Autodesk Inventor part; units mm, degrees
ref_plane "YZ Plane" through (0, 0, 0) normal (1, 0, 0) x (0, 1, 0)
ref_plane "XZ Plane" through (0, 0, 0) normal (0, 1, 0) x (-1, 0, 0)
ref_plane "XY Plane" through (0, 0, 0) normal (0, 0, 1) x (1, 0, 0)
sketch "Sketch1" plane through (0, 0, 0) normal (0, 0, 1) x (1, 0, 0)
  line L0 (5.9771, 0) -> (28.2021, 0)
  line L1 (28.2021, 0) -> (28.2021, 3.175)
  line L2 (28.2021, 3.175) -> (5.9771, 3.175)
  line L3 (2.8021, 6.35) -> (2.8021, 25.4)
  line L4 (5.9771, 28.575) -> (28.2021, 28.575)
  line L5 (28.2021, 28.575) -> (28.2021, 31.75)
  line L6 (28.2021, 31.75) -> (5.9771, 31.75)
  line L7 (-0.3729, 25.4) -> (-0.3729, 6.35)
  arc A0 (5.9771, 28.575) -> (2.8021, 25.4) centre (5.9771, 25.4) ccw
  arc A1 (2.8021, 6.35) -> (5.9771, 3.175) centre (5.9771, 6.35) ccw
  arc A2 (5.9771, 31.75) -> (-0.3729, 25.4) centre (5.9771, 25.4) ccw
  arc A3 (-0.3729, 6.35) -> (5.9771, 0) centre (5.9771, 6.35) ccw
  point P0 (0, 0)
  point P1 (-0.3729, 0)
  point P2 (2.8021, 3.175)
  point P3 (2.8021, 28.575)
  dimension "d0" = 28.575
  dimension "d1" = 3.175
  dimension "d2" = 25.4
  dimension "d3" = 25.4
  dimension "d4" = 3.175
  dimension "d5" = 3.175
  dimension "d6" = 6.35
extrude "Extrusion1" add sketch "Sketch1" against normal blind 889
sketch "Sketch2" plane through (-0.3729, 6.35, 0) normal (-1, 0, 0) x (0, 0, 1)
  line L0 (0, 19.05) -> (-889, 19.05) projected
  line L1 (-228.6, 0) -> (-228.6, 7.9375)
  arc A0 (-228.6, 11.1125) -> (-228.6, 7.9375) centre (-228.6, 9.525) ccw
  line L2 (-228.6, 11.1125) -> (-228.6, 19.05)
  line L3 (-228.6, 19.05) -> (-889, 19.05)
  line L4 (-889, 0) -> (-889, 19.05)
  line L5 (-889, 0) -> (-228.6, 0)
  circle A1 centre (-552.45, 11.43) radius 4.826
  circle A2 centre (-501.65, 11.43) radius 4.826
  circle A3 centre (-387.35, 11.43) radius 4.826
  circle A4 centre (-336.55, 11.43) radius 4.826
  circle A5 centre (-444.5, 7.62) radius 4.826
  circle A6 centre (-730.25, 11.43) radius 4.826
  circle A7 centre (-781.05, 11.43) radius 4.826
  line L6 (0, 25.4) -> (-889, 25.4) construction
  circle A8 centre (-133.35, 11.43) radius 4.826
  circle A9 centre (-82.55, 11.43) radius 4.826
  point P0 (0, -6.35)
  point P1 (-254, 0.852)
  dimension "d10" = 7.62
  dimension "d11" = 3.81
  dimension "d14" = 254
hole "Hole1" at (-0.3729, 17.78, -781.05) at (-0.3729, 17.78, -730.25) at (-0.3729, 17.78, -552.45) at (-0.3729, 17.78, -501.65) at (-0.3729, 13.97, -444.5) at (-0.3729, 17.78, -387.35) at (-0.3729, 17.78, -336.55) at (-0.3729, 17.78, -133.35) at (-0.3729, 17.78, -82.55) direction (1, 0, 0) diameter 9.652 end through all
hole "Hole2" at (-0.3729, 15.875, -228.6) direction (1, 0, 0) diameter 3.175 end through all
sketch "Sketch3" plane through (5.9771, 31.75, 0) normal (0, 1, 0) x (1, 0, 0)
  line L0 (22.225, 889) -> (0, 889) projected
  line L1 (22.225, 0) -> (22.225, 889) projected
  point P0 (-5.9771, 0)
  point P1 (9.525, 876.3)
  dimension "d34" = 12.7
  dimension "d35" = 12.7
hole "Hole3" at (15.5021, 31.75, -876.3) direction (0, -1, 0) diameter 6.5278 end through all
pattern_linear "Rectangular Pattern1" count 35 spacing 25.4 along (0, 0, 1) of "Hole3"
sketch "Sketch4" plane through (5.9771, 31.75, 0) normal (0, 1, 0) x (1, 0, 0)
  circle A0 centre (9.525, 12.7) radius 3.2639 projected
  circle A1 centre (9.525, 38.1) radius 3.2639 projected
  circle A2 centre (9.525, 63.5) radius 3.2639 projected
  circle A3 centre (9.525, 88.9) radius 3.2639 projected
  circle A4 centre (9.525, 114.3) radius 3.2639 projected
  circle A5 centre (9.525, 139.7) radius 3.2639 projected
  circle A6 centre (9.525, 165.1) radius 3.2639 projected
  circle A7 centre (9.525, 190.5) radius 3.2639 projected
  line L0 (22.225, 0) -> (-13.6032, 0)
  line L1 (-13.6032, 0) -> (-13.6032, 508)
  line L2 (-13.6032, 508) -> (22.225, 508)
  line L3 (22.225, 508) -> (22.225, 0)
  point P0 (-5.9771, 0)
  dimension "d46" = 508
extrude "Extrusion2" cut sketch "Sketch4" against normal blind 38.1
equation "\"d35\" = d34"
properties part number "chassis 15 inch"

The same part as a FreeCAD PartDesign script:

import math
import FreeCAD as App
import Part
import Sketcher
from FreeCAD import Vector
Q = App.Units.Quantity


def add_polygon(sketch, points):
    """Adds a closed chain of lines whose ends are joined by coincident constraints."""
    first, n = sketch.GeometryCount, len(points)
    for a, b in zip(points, points[1:] + points[:1]):
        sketch.addGeometry(Part.LineSegment(App.Vector(*a, 0), App.Vector(*b, 0)), False)
    for i in range(n):
        sketch.addConstraint(Sketcher.Constraint("Coincident", first + i, 2, first + (i + 1) % n, 1))

doc = App.newDocument("Part")
params = doc.addObject("Spreadsheet::Sheet", "Params")
for row, (alias, value) in enumerate([
    ("sketch1_radius", "0.25 in"),
    ("sketch1_radius2", "0.125 in"),
    ("pad1_length", "35 in"),
    ("sketch2_diameter", "0.38 in"),
    ("hole_diameter", "0.38 in"),
    ("sketch3_diameter", "0.125 in"),
    ("hole2_diameter", "0.125 in"),
    ("sketch4_diameter", "0.257 in"),
    ("hole3_diameter", "0.257 in"),
    ("linearpattern_pitch", "1 in"),
    ("sketch5_height", "20 in"),
    ("sketch5_diameter", "0.257 in"),
    ("pocket1_length", "1.5 in"),
], start=1):
    params.set(f"A{row}", alias)
    params.set(f"B{row}", "=" + value)
    params.setAlias(f"B{row}", alias)

body = doc.addObject("PartDesign::Body", "Body")

# Sketch on XY plane
sketch1 = body.newObject("Sketcher::SketchObject", "Sketch")
sketch1.AttachmentSupport = (doc.getObject("XY_Plane"), [""])
sketch1.MapMode = "FlatFace"
sketch1.addGeometry(Part.ArcOfCircle(Part.Circle(Vector(6, 6.3, 0), Vector(0, 0, 1), 6.3), math.radians(180), math.radians(270)), False)
sketch1.addGeometry(Part.LineSegment(Vector(6, 0, 0), Vector(28.2, 0, 0)), False)
sketch1.addGeometry(Part.LineSegment(Vector(28.2, 0, 0), Vector(28.2, 3.2, 0)), False)
sketch1.addGeometry(Part.LineSegment(Vector(28.2, 3.2, 0), Vector(6, 3.2, 0)), False)
sketch1.addGeometry(Part.ArcOfCircle(Part.Circle(Vector(6, 6.3, 0), Vector(0, 0, 1), 3.2), math.radians(180), math.radians(270)), False)
sketch1.addGeometry(Part.LineSegment(Vector(2.8, 6.3, 0), Vector(2.8, 25.4, 0)), False)
sketch1.addGeometry(Part.ArcOfCircle(Part.Circle(Vector(6, 25.4, 0), Vector(0, 0, 1), 3.2), math.radians(90), math.radians(180)), False)
sketch1.addGeometry(Part.LineSegment(Vector(6, 28.6, 0), Vector(28.2, 28.6, 0)), False)
sketch1.addGeometry(Part.LineSegment(Vector(28.2, 28.6, 0), Vector(28.2, 31.8, 0)), False)
sketch1.addGeometry(Part.LineSegment(Vector(28.2, 31.8, 0), Vector(6, 31.8, 0)), False)
sketch1.addGeometry(Part.ArcOfCircle(Part.Circle(Vector(6, 25.4, 0), Vector(0, 0, 1), 6.4), math.radians(90), math.radians(180)), False)
sketch1.addGeometry(Part.LineSegment(Vector(-0.4, 25.4, 0), Vector(-0.4, 6.3, 0)), False)
sketch1.addConstraint(Sketcher.Constraint("Tangent", 0, 2, 1, 1))
sketch1.addConstraint(Sketcher.Constraint("Coincident", 1, 2, 2, 1))
sketch1.addConstraint(Sketcher.Constraint("Coincident", 2, 2, 3, 1))
sketch1.addConstraint(Sketcher.Constraint("Tangent", 3, 2, 4, 2))
sketch1.addConstraint(Sketcher.Constraint("Tangent", 4, 1, 5, 1))
sketch1.addConstraint(Sketcher.Constraint("Tangent", 5, 2, 6, 2))
sketch1.addConstraint(Sketcher.Constraint("Tangent", 6, 1, 7, 1))
sketch1.addConstraint(Sketcher.Constraint("Coincident", 7, 2, 8, 1))
sketch1.addConstraint(Sketcher.Constraint("Coincident", 8, 2, 9, 1))
sketch1.addConstraint(Sketcher.Constraint("Tangent", 9, 2, 10, 1))
sketch1.addConstraint(Sketcher.Constraint("Tangent", 10, 2, 11, 1))
sketch1.addConstraint(Sketcher.Constraint("Tangent", 11, 2, 0, 1))
sketch1.addConstraint(Sketcher.Constraint("Horizontal", 1))
sketch1.addConstraint(Sketcher.Constraint("Vertical", 2))
sketch1.addConstraint(Sketcher.Constraint("Horizontal", 3))
sketch1.addConstraint(Sketcher.Constraint("Vertical", 5))
sketch1.addConstraint(Sketcher.Constraint("Horizontal", 7))
sketch1.addConstraint(Sketcher.Constraint("Vertical", 8))
sketch1.addConstraint(Sketcher.Constraint("Horizontal", 9))
sketch1.addConstraint(Sketcher.Constraint("Vertical", 11))
sketch1.addConstraint(Sketcher.Constraint("Coincident", 4, 3, 0, 3))
sketch1.addConstraint(Sketcher.Constraint("Coincident", 10, 3, 6, 3))
sketch1.addConstraint(Sketcher.Constraint("Equal", 4, 6))
sketch1.addConstraint(Sketcher.Constraint("PointOnObject", 0, 2, -1))
sketch1.addConstraint(Sketcher.Constraint("Vertical", 2, 2, 7, 2))
sketch1.addConstraint(Sketcher.Constraint("Radius", 0, Q("0.25 in")))
sketch1.addConstraint(Sketcher.Constraint("DistanceY", -1, 1, 6, 3, Q("1 in")))
sketch1.addConstraint(Sketcher.Constraint("Radius", 4, Q("0.125 in")))
sketch1.addConstraint(Sketcher.Constraint("DistanceX", 5, 2, 7, 2, Q("1 in")))
sketch1.addConstraint(Sketcher.Constraint("DistanceX", -1, 1, 0, 3, Q("5.977 mm")))
sketch1.setExpression("Constraints[25]", "Params.sketch1_radius")
sketch1.setExpression("Constraints[27]", "Params.sketch1_radius2")
pad1 = body.newObject("PartDesign::Pad", "Pad")
pad1.Profile = sketch1
pad1.setExpression("Length", "Params.pad1_length")
pad1.Reversed = True

# Sketch on YZ plane
sketch2 = body.newObject("Sketcher::SketchObject", "Sketch001")
sketch2.AttachmentSupport = (doc.getObject("YZ_Plane"), [""])
sketch2.MapMode = "FlatFace"
sketch2.AttachmentOffset = App.Placement(Vector(0, 0, -0.3729), App.Rotation())
sketch2.addGeometry(Part.Circle(Vector(17.8, -781, 0), Vector(0, 0, 1), 4.8), False)
sketch2.addGeometry(Part.Circle(Vector(17.8, -730.2, 0), Vector(0, 0, 1), 4.8), False)
sketch2.addGeometry(Part.Circle(Vector(17.8, -552.5, 0), Vector(0, 0, 1), 4.8), False)
sketch2.addGeometry(Part.Circle(Vector(17.8, -501.6, 0), Vector(0, 0, 1), 4.8), False)
sketch2.addGeometry(Part.Circle(Vector(14, -444.5, 0), Vector(0, 0, 1), 4.8), False)
sketch2.addGeometry(Part.Circle(Vector(17.8, -387.4, 0), Vector(0, 0, 1), 4.8), False)
sketch2.addGeometry(Part.Circle(Vector(17.8, -336.6, 0), Vector(0, 0, 1), 4.8), False)
sketch2.addGeometry(Part.Circle(Vector(17.8, -133.3, 0), Vector(0, 0, 1), 4.8), False)
sketch2.addGeometry(Part.Circle(Vector(17.8, -82.5, 0), Vector(0, 0, 1), 4.8), False)
sketch2.addConstraint(Sketcher.Constraint("Equal", 0, 1))
sketch2.addConstraint(Sketcher.Constraint("Equal", 1, 2))
sketch2.addConstraint(Sketcher.Constraint("Equal", 2, 3))
sketch2.addConstraint(Sketcher.Constraint("Equal", 3, 4))
sketch2.addConstraint(Sketcher.Constraint("Equal", 4, 5))
sketch2.addConstraint(Sketcher.Constraint("Equal", 5, 6))
sketch2.addConstraint(Sketcher.Constraint("Equal", 6, 7))
sketch2.addConstraint(Sketcher.Constraint("Equal", 7, 8))
sketch2.addConstraint(Sketcher.Constraint("Vertical", 0, 3, 1, 3))
sketch2.addConstraint(Sketcher.Constraint("Vertical", 1, 3, 2, 3))
sketch2.addConstraint(Sketcher.Constraint("Vertical", 2, 3, 3, 3))
sketch2.addConstraint(Sketcher.Constraint("Vertical", 3, 3, 5, 3))
sketch2.addConstraint(Sketcher.Constraint("Vertical", 5, 3, 6, 3))
sketch2.addConstraint(Sketcher.Constraint("Vertical", 6, 3, 7, 3))
sketch2.addConstraint(Sketcher.Constraint("Vertical", 7, 3, 8, 3))
sketch2.addConstraint(Sketcher.Constraint("Diameter", 0, Q("0.38 in")))
sketch2.addConstraint(Sketcher.Constraint("DistanceY", 0, 3, 1, 3, Q("2 in")))
sketch2.addConstraint(Sketcher.Constraint("DistanceY", 1, 3, 2, 3, Q("7 in")))
sketch2.addConstraint(Sketcher.Constraint("DistanceY", 2, 3, 3, 3, Q("2 in")))
sketch2.addConstraint(Sketcher.Constraint("DistanceY", 5, 3, 6, 3, Q("2 in")))
sketch2.addConstraint(Sketcher.Constraint("DistanceY", 6, 3, 7, 3, Q("8 in")))
sketch2.addConstraint(Sketcher.Constraint("DistanceY", 7, 3, 8, 3, Q("2 in")))
sketch2.addConstraint(Sketcher.Constraint("DistanceX", -1, 1, 0, 3, Q("0.7 in")))
sketch2.addConstraint(Sketcher.Constraint("DistanceY", 4, 3, -1, 1, Q("17.5 in")))
sketch2.addConstraint(Sketcher.Constraint("DistanceY", 3, 3, 5, 3, Q("4.5 in")))
sketch2.addConstraint(Sketcher.Constraint("DistanceY", 0, 3, -1, 1, Q("30.75 in")))
sketch2.addConstraint(Sketcher.Constraint("DistanceX", -1, 1, 4, 3, Q("0.55 in")))
sketch2.setExpression("Constraints[15]", "Params.sketch2_diameter")
doc.recompute()
hole = body.newObject("PartDesign::Hole", "Hole")
hole.Profile = sketch2
hole.ThreadType = "None"
hole.setExpression("Diameter", "Params.hole_diameter")
hole.DepthType = "ThroughAll"
hole.Reversed = True

# Sketch on YZ plane
sketch3 = body.newObject("Sketcher::SketchObject", "Sketch002")
sketch3.AttachmentSupport = (doc.getObject("YZ_Plane"), [""])
sketch3.MapMode = "FlatFace"
sketch3.AttachmentOffset = App.Placement(Vector(0, 0, -0.3729), App.Rotation())
sketch3.addGeometry(Part.Circle(Vector(15.9, -228.6, 0), Vector(0, 0, 1), 1.6), False)
sketch3.addConstraint(Sketcher.Constraint("Diameter", 0, Q("0.125 in")))
sketch3.addConstraint(Sketcher.Constraint("DistanceY", 0, 3, -1, 1, Q("9 in")))
sketch3.addConstraint(Sketcher.Constraint("DistanceX", -1, 1, 0, 3, Q("0.625 in")))
sketch3.setExpression("Constraints[0]", "Params.sketch3_diameter")
doc.recompute()
hole2 = body.newObject("PartDesign::Hole", "Hole001")
hole2.Profile = sketch3
hole2.ThreadType = "None"
hole2.setExpression("Diameter", "Params.hole2_diameter")
hole2.DepthType = "ThroughAll"
hole2.Reversed = True

# Sketch on XZ plane
sketch4 = body.newObject("Sketcher::SketchObject", "Sketch003")
sketch4.AttachmentSupport = (doc.getObject("XZ_Plane"), [""])
sketch4.MapMode = "FlatFace"
sketch4.AttachmentOffset = App.Placement(Vector(0, 0, -1.25 * 25.4), App.Rotation())
sketch4.addGeometry(Part.Circle(Vector(15.5, -876.3, 0), Vector(0, 0, 1), 3.3), False)
sketch4.addConstraint(Sketcher.Constraint("Diameter", 0, Q("0.257 in")))
sketch4.addConstraint(Sketcher.Constraint("DistanceY", 0, 3, -1, 1, Q("34.5 in")))
sketch4.addConstraint(Sketcher.Constraint("DistanceX", -1, 1, 0, 3, Q("15.502 mm")))
sketch4.setExpression("Constraints[0]", "Params.sketch4_diameter")
doc.recompute()
hole3 = body.newObject("PartDesign::Hole", "Hole002")
hole3.Profile = sketch4
hole3.ThreadType = "None"
hole3.setExpression("Diameter", "Params.hole3_diameter")
hole3.DepthType = "ThroughAll"
hole3.Reversed = True
doc.recompute()

linearpattern = body.newObject("PartDesign::LinearPattern", "LinearPattern")
linearpattern.Originals = [hole3]
linearpattern.Direction = (doc.getObject("Z_Axis"), [""])
linearpattern.Mode = "offset"
linearpattern.setExpression("Offset", "Params.linearpattern_pitch")
linearpattern.Occurrences = 35
body.Tip = linearpattern

# Sketch on XZ plane
sketch5 = body.newObject("Sketcher::SketchObject", "Sketch004")
sketch5.AttachmentSupport = (doc.getObject("XZ_Plane"), [""])
sketch5.MapMode = "FlatFace"
sketch5.AttachmentOffset = App.Placement(Vector(0, 0, -1.25 * 25.4), App.Rotation())
add_polygon(sketch5, [(-7.6, 0), (28.2, 0), (28.2, -508), (-7.6, -508)])  # lines 0-3
sketch5.addGeometry(Part.Circle(Vector(15.5, -12.7, 0), Vector(0, 0, 1), 3.3), False)  # 4
sketch5.addGeometry(Part.Circle(Vector(15.5, -38.1, 0), Vector(0, 0, 1), 3.3), False)  # 5
sketch5.addGeometry(Part.Circle(Vector(15.5, -63.5, 0), Vector(0, 0, 1), 3.3), False)  # 6
sketch5.addGeometry(Part.Circle(Vector(15.5, -88.9, 0), Vector(0, 0, 1), 3.3), False)  # 7
sketch5.addGeometry(Part.Circle(Vector(15.5, -114.3, 0), Vector(0, 0, 1), 3.3), False)  # 8
sketch5.addGeometry(Part.Circle(Vector(15.5, -139.7, 0), Vector(0, 0, 1), 3.3), False)  # 9
sketch5.addGeometry(Part.Circle(Vector(15.5, -165.1, 0), Vector(0, 0, 1), 3.3), False)  # 10
sketch5.addGeometry(Part.Circle(Vector(15.5, -190.5, 0), Vector(0, 0, 1), 3.3), False)  # 11
sketch5.addConstraint(Sketcher.Constraint("Horizontal", 0))
sketch5.addConstraint(Sketcher.Constraint("Vertical", 1))
sketch5.addConstraint(Sketcher.Constraint("Horizontal", 2))
sketch5.addConstraint(Sketcher.Constraint("Vertical", 3))
sketch5.addConstraint(Sketcher.Constraint("Equal", 4, 5))
sketch5.addConstraint(Sketcher.Constraint("Equal", 5, 6))
sketch5.addConstraint(Sketcher.Constraint("Equal", 6, 7))
sketch5.addConstraint(Sketcher.Constraint("Equal", 7, 8))
sketch5.addConstraint(Sketcher.Constraint("Equal", 8, 9))
sketch5.addConstraint(Sketcher.Constraint("Equal", 9, 10))
sketch5.addConstraint(Sketcher.Constraint("Equal", 10, 11))
sketch5.addConstraint(Sketcher.Constraint("PointOnObject", 0, 2, -1))
sketch5.addConstraint(Sketcher.Constraint("Vertical", 4, 3, 5, 3))
sketch5.addConstraint(Sketcher.Constraint("Vertical", 5, 3, 6, 3))
sketch5.addConstraint(Sketcher.Constraint("Vertical", 6, 3, 7, 3))
sketch5.addConstraint(Sketcher.Constraint("Vertical", 7, 3, 8, 3))
sketch5.addConstraint(Sketcher.Constraint("Vertical", 8, 3, 9, 3))
sketch5.addConstraint(Sketcher.Constraint("Vertical", 9, 3, 10, 3))
sketch5.addConstraint(Sketcher.Constraint("Vertical", 10, 3, 11, 3))
sketch5.addConstraint(Sketcher.Constraint("DistanceY", 1, 2, 1, 1, Q("20 in")))
sketch5.addConstraint(Sketcher.Constraint("Diameter", 4, Q("0.257 in")))
sketch5.addConstraint(Sketcher.Constraint("DistanceY", 5, 3, 4, 3, Q("1 in")))
sketch5.addConstraint(Sketcher.Constraint("DistanceY", 6, 3, 5, 3, Q("1 in")))
sketch5.addConstraint(Sketcher.Constraint("DistanceY", 7, 3, 6, 3, Q("1 in")))
sketch5.addConstraint(Sketcher.Constraint("DistanceY", 8, 3, 7, 3, Q("1 in")))
sketch5.addConstraint(Sketcher.Constraint("DistanceY", 9, 3, 8, 3, Q("1 in")))
sketch5.addConstraint(Sketcher.Constraint("DistanceY", 10, 3, 9, 3, Q("1 in")))
sketch5.addConstraint(Sketcher.Constraint("DistanceY", 11, 3, 10, 3, Q("1 in")))
sketch5.addConstraint(Sketcher.Constraint("DistanceY", 4, 3, -1, 1, Q("0.5 in")))
sketch5.addConstraint(Sketcher.Constraint("DistanceX", 4, 3, 0, 2, Q("0.5 in")))
sketch5.addConstraint(Sketcher.Constraint("DistanceX", 0, 1, 0, 2, Q("35.8282 mm")))
sketch5.addConstraint(Sketcher.Constraint("DistanceX", -1, 1, 4, 3, Q("15.502 mm")))
sketch5.setExpression("Constraints[23]", "Params.sketch5_height")
sketch5.setExpression("Constraints[24]", "Params.sketch5_diameter")
pocket1 = body.newObject("PartDesign::Pocket", "Pocket")
pocket1.Profile = sketch5
pocket1.setExpression("Length", "Params.pocket1_length")
pocket1.Reversed = True

doc.recompute()
